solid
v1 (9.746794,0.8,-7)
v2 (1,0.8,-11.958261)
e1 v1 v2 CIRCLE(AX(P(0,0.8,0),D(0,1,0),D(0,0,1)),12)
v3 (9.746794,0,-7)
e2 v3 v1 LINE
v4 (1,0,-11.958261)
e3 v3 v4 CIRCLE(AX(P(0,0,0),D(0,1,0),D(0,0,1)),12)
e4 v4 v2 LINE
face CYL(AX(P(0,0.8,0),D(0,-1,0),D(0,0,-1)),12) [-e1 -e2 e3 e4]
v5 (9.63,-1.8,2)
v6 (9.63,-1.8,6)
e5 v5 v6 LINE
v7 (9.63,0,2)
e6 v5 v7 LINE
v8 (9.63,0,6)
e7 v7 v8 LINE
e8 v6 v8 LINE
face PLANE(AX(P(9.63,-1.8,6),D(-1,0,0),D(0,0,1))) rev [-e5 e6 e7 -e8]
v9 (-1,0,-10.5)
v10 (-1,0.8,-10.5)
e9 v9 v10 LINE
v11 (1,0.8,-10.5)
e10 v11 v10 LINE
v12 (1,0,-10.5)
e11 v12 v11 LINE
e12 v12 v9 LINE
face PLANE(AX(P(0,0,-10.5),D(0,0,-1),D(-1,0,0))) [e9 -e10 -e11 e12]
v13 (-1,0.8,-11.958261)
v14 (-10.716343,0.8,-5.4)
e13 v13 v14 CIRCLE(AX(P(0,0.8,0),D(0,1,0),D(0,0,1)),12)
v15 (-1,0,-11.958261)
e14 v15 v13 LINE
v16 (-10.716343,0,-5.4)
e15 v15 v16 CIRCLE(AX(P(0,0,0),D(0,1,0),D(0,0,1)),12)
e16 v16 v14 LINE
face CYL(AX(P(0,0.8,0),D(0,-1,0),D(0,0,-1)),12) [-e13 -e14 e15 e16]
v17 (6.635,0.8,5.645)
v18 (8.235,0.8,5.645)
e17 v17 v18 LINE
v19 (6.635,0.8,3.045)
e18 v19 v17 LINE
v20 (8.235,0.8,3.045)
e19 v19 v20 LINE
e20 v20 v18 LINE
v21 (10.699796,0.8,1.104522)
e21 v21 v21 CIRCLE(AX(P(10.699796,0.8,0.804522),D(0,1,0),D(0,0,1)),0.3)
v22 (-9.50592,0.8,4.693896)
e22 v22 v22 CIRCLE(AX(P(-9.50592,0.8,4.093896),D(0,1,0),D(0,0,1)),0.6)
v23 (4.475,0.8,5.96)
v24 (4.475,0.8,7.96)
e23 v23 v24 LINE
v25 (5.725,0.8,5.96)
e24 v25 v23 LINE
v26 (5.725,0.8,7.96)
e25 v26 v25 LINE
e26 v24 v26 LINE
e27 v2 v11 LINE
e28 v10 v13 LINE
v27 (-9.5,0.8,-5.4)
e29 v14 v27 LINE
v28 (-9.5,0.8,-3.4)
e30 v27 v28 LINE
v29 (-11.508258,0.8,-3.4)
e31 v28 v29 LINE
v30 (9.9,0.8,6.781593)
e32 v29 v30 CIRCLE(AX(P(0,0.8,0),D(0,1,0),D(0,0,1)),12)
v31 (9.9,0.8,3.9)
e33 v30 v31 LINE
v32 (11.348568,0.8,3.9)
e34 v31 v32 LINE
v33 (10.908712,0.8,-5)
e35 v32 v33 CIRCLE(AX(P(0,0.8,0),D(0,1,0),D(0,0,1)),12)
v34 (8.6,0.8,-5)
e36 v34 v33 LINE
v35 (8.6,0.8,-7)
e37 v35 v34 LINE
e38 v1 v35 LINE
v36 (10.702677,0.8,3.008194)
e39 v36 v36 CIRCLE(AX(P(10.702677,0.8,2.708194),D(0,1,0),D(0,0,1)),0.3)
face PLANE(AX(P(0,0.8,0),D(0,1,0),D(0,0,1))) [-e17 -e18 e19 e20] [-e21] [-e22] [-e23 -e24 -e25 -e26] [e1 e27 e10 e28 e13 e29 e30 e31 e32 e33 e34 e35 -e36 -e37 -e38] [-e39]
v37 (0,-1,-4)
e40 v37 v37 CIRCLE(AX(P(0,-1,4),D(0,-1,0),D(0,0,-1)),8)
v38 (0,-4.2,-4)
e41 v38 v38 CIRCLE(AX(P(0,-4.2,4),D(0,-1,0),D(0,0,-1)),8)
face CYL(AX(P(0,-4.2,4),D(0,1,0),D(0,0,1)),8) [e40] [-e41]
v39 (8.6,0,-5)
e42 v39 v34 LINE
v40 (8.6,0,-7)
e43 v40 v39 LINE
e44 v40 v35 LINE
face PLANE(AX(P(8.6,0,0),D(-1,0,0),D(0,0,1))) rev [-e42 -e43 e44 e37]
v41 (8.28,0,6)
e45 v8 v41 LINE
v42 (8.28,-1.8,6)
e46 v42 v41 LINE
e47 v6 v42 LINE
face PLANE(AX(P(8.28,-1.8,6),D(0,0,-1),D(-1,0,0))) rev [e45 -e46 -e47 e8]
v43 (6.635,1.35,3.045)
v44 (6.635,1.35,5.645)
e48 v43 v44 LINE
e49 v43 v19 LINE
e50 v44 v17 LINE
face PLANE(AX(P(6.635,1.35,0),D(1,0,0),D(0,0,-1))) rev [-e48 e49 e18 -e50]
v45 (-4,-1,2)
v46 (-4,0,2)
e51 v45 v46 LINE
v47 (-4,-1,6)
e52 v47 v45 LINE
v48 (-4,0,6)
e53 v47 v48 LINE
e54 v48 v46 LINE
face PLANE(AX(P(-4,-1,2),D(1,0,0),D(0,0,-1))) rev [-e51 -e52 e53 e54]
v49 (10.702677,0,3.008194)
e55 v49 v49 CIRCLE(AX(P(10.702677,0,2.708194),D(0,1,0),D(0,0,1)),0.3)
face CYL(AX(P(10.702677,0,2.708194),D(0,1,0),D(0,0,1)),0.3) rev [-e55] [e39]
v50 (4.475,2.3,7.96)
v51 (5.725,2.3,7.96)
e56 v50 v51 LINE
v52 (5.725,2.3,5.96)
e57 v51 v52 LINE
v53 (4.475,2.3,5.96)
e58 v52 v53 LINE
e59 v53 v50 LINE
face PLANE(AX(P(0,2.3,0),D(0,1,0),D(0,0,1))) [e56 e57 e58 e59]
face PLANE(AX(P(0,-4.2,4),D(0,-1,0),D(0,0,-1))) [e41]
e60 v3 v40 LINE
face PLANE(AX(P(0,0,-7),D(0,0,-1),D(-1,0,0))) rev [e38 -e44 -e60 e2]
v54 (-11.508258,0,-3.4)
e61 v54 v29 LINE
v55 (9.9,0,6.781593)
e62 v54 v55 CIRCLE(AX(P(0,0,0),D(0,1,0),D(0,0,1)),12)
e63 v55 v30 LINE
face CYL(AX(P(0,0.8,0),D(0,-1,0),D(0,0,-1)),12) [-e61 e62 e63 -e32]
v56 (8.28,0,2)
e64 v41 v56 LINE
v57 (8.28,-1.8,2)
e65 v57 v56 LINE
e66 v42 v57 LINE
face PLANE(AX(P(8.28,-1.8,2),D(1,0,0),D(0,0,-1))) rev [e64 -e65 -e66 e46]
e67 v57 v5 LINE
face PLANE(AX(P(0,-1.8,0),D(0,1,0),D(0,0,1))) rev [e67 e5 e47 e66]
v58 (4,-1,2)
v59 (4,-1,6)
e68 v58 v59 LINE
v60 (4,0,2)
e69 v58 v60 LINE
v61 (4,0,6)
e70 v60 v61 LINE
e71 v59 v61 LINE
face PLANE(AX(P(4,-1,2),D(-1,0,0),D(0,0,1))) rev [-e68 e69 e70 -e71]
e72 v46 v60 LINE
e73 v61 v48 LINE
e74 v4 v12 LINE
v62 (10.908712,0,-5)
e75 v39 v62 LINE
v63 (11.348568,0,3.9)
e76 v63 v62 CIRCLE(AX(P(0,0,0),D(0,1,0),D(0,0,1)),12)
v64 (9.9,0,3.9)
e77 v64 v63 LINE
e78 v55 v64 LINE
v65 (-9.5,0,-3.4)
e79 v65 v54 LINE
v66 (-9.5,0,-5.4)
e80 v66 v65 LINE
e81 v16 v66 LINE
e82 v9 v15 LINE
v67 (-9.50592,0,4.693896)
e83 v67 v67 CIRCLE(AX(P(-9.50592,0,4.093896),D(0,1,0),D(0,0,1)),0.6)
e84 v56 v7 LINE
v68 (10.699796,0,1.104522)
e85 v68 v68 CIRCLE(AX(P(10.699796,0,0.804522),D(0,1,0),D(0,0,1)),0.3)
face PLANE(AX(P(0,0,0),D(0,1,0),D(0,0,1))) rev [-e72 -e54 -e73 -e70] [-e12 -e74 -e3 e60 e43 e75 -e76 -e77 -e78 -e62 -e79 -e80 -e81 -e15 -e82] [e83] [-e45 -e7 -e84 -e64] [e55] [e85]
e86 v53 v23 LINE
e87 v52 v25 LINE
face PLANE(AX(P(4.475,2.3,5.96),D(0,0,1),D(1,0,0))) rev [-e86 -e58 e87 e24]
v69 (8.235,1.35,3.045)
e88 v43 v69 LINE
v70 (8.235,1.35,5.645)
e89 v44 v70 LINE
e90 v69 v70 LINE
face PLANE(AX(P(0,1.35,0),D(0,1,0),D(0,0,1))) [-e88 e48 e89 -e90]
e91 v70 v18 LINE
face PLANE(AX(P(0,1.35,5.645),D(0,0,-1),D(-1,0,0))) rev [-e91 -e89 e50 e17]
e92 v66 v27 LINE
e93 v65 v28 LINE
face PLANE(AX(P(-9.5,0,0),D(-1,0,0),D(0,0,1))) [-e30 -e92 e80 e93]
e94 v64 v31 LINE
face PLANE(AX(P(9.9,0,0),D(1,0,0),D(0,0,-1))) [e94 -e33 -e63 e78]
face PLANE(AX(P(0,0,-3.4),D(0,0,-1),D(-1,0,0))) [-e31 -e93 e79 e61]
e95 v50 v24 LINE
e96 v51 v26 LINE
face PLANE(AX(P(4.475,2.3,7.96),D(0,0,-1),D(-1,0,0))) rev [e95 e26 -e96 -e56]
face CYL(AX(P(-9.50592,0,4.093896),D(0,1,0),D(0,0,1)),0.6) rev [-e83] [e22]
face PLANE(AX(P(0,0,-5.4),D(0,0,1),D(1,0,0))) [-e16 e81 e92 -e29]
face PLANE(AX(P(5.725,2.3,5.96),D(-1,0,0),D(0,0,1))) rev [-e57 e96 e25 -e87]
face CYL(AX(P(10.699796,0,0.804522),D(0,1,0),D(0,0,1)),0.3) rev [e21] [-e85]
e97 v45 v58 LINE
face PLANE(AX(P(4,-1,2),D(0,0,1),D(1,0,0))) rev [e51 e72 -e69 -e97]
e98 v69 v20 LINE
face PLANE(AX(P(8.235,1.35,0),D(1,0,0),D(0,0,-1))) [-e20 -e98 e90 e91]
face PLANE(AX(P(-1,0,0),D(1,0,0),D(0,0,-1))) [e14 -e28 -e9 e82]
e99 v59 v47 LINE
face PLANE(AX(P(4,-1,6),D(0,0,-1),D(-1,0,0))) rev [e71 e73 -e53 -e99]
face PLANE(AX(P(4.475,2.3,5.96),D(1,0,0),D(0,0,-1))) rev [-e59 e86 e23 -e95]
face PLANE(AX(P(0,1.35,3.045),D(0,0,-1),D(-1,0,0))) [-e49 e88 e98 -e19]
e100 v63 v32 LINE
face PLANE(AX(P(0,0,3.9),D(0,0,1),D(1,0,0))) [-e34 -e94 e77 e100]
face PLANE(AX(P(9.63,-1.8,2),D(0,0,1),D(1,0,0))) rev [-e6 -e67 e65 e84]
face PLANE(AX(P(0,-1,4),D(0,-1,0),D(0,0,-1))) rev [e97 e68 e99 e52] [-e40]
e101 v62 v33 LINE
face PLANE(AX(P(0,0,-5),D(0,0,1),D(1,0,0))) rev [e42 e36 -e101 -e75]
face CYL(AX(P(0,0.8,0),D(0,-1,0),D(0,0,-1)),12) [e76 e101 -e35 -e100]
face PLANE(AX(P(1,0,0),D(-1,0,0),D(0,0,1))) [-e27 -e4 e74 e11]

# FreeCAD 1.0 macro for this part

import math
import FreeCAD as App
import Part
import Sketcher
from FreeCAD import Vector
Q = App.Units.Quantity

doc = App.newDocument("Part")
body = doc.addObject("PartDesign::Body", "Body")

sketch1 = body.newObject("Sketcher::SketchObject", "Sketch")
sketch1.AttachmentSupport = (doc.getObject("XZ_Plane"), [""])
sketch1.MapMode = "FlatFace"
sketch1.addGeometry(Part.Circle(Vector(0, 0, 0), Vector(0, 0, 1), 12), False)
sketch1.addConstraint(Sketcher.Constraint("Coincident", 0, 3, -1, 1))
sketch1.addConstraint(Sketcher.Constraint("Diameter", 0, Q("24 mm")))
pad1 = body.newObject("PartDesign::Pad", "Pad")
pad1.Profile = sketch1
pad1.Length = 0.8
pad1.Reversed = True

sketch2 = body.newObject("Sketcher::SketchObject", "Sketch001")
sketch2.AttachmentSupport = (doc.getObject("XZ_Plane"), [""])
sketch2.MapMode = "FlatFace"
sketch2.addGeometry(Part.LineSegment(Vector(-11.508258, -3.4, 0), Vector(-9.5, -3.4, 0)), False)
sketch2.addGeometry(Part.LineSegment(Vector(-9.5, -3.4, 0), Vector(-9.5, -5.4, 0)), False)
sketch2.addGeometry(Part.LineSegment(Vector(-9.5, -5.4, 0), Vector(-10.716343, -5.4, 0)), False)
sketch2.addGeometry(Part.ArcOfCircle(Part.Circle(Vector(0, 0, 0), Vector(0, 0, 1), 12), math.radians(-163.54075), math.radians(-153.256316)), False)
sketch2.addGeometry(Part.ArcOfCircle(Part.Circle(Vector(0, 0, 0), Vector(0, 0, 1), 12), math.radians(-94.780192), math.radians(-90)), False)
sketch2.addGeometry(Part.LineSegment(Vector(-1, -11.958261, 0), Vector(-1, -10.5, 0)), False)
sketch2.addGeometry(Part.LineSegment(Vector(-1, -10.5, 0), Vector(1, -10.5, 0)), False)
sketch2.addGeometry(Part.LineSegment(Vector(1, -10.5, 0), Vector(1, -11.958261, 0)), False)
sketch2.addGeometry(Part.ArcOfCircle(Part.Circle(Vector(0, 0, 0), Vector(0, 0, 1), 12), math.radians(-90), math.radians(-85.219808)), False)
sketch2.addGeometry(Part.LineSegment(Vector(8.6, -5, 0), Vector(10.908712, -5, 0)), False)
sketch2.addGeometry(Part.ArcOfCircle(Part.Circle(Vector(0, 0, 0), Vector(0, 0, 1), 12), math.radians(-35.685335), math.radians(-24.624318)), False)
sketch2.addGeometry(Part.LineSegment(Vector(9.746794, -7, 0), Vector(8.6, -7, 0)), False)
sketch2.addGeometry(Part.LineSegment(Vector(8.6, -7, 0), Vector(8.6, -5, 0)), False)
sketch2.addGeometry(Part.LineSegment(Vector(9.9, 3.9, 0), Vector(9.9, 6.781593, 0)), False)
sketch2.addGeometry(Part.ArcOfCircle(Part.Circle(Vector(0, 0, 0), Vector(0, 0, 1), 12), math.radians(18.965575), math.radians(34.411509)), False)
sketch2.addGeometry(Part.LineSegment(Vector(11.348568, 3.9, 0), Vector(9.9, 3.9, 0)), False)
sketch2.addConstraint(Sketcher.Constraint("Coincident", 0, 2, 1, 1))
sketch2.addConstraint(Sketcher.Constraint("Coincident", 1, 2, 2, 1))
sketch2.addConstraint(Sketcher.Constraint("Coincident", 2, 2, 3, 2))
sketch2.addConstraint(Sketcher.Constraint("Coincident", 3, 1, 0, 1))
sketch2.addConstraint(Sketcher.Constraint("Coincident", 4, 1, 5, 1))
sketch2.addConstraint(Sketcher.Constraint("Coincident", 5, 2, 6, 1))
sketch2.addConstraint(Sketcher.Constraint("Coincident", 6, 2, 7, 1))
sketch2.addConstraint(Sketcher.Constraint("Coincident", 7, 2, 8, 2))
sketch2.addConstraint(Sketcher.Constraint("Tangent", 8, 1, 4, 2))
sketch2.addConstraint(Sketcher.Constraint("Coincident", 9, 2, 10, 2))
sketch2.addConstraint(Sketcher.Constraint("Coincident", 10, 1, 11, 1))
sketch2.addConstraint(Sketcher.Constraint("Coincident", 11, 2, 12, 1))
sketch2.addConstraint(Sketcher.Constraint("Coincident", 12, 2, 9, 1))
sketch2.addConstraint(Sketcher.Constraint("Coincident", 13, 2, 14, 2))
sketch2.addConstraint(Sketcher.Constraint("Coincident", 14, 1, 15, 1))
sketch2.addConstraint(Sketcher.Constraint("Coincident", 15, 2, 13, 1))
sketch2.addConstraint(Sketcher.Constraint("Horizontal", 0))
sketch2.addConstraint(Sketcher.Constraint("Vertical", 1))
sketch2.addConstraint(Sketcher.Constraint("Horizontal", 2))
sketch2.addConstraint(Sketcher.Constraint("Vertical", 5))
sketch2.addConstraint(Sketcher.Constraint("Horizontal", 6))
sketch2.addConstraint(Sketcher.Constraint("Vertical", 7))
sketch2.addConstraint(Sketcher.Constraint("Horizontal", 9))
sketch2.addConstraint(Sketcher.Constraint("Horizontal", 11))
sketch2.addConstraint(Sketcher.Constraint("Vertical", 12))
sketch2.addConstraint(Sketcher.Constraint("Vertical", 13))
sketch2.addConstraint(Sketcher.Constraint("Horizontal", 15))
sketch2.addConstraint(Sketcher.Constraint("Coincident", 3, 3, -1, 1))
sketch2.addConstraint(Sketcher.Constraint("Coincident", 4, 3, -1, 1))
sketch2.addConstraint(Sketcher.Constraint("Coincident", 10, 3, -1, 1))
sketch2.addConstraint(Sketcher.Constraint("Coincident", 14, 3, -1, 1))
sketch2.addConstraint(Sketcher.Constraint("Equal", 3, 4))
sketch2.addConstraint(Sketcher.Constraint("Equal", 4, 8))
sketch2.addConstraint(Sketcher.Constraint("Equal", 8, 10))
sketch2.addConstraint(Sketcher.Constraint("Equal", 10, 14))
sketch2.addConstraint(Sketcher.Constraint("PointOnObject", 8, 1, -2))
sketch2.addConstraint(Sketcher.Constraint("Horizontal", 4, 1, 7, 2))
sketch2.addConstraint(Sketcher.Constraint("Equal", 6, 1))
sketch2.addConstraint(Sketcher.Constraint("Equal", 1, 12))
sketch2.addConstraint(Sketcher.Constraint("Radius", 3, Q("12 mm")))
sketch2.addConstraint(Sketcher.Constraint("DistanceX", 6, 1, 6, 2, Q("2 mm")))
sketch2.addConstraint(Sketcher.Constraint("DistanceY", 9, 2, -1, 1, Q("5 mm")))
sketch2.addConstraint(Sketcher.Constraint("DistanceX", 0, 2, -1, 1, Q("9.5 mm")))
sketch2.addConstraint(Sketcher.Constraint("DistanceY", 0, 2, -1, 1, Q("3.4 mm")))
sketch2.addConstraint(Sketcher.Constraint("DistanceY", 5, 2, -1, 1, Q("10.5 mm")))
sketch2.addConstraint(Sketcher.Constraint("DistanceX", -1, 1, 11, 2, Q("8.6 mm")))
sketch2.addConstraint(Sketcher.Constraint("DistanceX", -1, 1, 13, 2, Q("9.9 mm")))
sketch2.addConstraint(Sketcher.Constraint("DistanceY", -1, 1, 14, 1, Q("3.9 mm")))
pocket1 = body.newObject("PartDesign::Pocket", "Pocket")
pocket1.Profile = sketch2
pocket1.Length = 0.8

sketch3 = body.newObject("Sketcher::SketchObject", "Sketch002")
sketch3.AttachmentSupport = (doc.getObject("XZ_Plane"), [""])
sketch3.MapMode = "FlatFace"
sketch3.AttachmentOffset = App.Placement(Vector(0, 0, -0.8), App.Rotation())
sketch3.addGeometry(Part.Circle(Vector(-9.50592, 4.093896, 0), Vector(0, 0, 1), 0.6), False)
sketch3.addGeometry(Part.Circle(Vector(10.702677, 2.708194, 0), Vector(0, 0, 1), 0.3), False)
sketch3.addGeometry(Part.Circle(Vector(10.699796, 0.804522, 0), Vector(0, 0, 1), 0.3), False)
sketch3.addConstraint(Sketcher.Constraint("Equal", 1, 2))
sketch3.addConstraint(Sketcher.Constraint("Diameter", 0, Q("1.2 mm")))
sketch3.addConstraint(Sketcher.Constraint("Diameter", 1, Q("0.6 mm")))
sketch3.addConstraint(Sketcher.Constraint("DistanceX", 0, 3, -1, 1, Q("9.50592 mm")))
sketch3.addConstraint(Sketcher.Constraint("DistanceY", -1, 1, 2, 3, Q("0.804522 mm")))
sketch3.addConstraint(Sketcher.Constraint("DistanceX", 2, 3, 1, 3, Q("0.00288 mm")))
sketch3.addConstraint(Sketcher.Constraint("DistanceY", 2, 3, 1, 3, Q("1.903672 mm")))
sketch3.addConstraint(Sketcher.Constraint("DistanceY", -1, 1, 0, 3, Q("4.093896 mm")))
sketch3.addConstraint(Sketcher.Constraint("DistanceX", -1, 1, 1, 3, Q("10.702677 mm")))
pocket2 = body.newObject("PartDesign::Pocket", "Pocket001")
pocket2.Profile = sketch3
pocket2.Length = 0.8
pocket2.Reversed = True

sketch4 = body.newObject("Sketcher::SketchObject", "Sketch003")
sketch4.AttachmentSupport = (doc.getObject("XZ_Plane"), [""])
sketch4.MapMode = "FlatFace"
sketch4.addGeometry(Part.LineSegment(Vector(4, 2, 0), Vector(4, 6, 0)), False)
sketch4.addGeometry(Part.LineSegment(Vector(4, 6, 0), Vector(-4, 6, 0)), False)
sketch4.addGeometry(Part.LineSegment(Vector(-4, 6, 0), Vector(-4, 2, 0)), False)
sketch4.addGeometry(Part.LineSegment(Vector(-4, 2, 0), Vector(4, 2, 0)), False)
sketch4.addConstraint(Sketcher.Constraint("Coincident", 0, 2, 1, 1))
sketch4.addConstraint(Sketcher.Constraint("Coincident", 1, 2, 2, 1))
sketch4.addConstraint(Sketcher.Constraint("Coincident", 2, 2, 3, 1))
sketch4.addConstraint(Sketcher.Constraint("Coincident", 3, 2, 0, 1))
sketch4.addConstraint(Sketcher.Constraint("Vertical", 0))
sketch4.addConstraint(Sketcher.Constraint("Horizontal", 1))
sketch4.addConstraint(Sketcher.Constraint("Vertical", 2))
sketch4.addConstraint(Sketcher.Constraint("Horizontal", 3))
sketch4.addConstraint(Sketcher.Constraint("DistanceX", 1, 2, 1, 1, Q("8 mm")))
sketch4.addConstraint(Sketcher.Constraint("DistanceY", 0, 1, 0, 2, Q("4 mm")))
sketch4.addConstraint(Sketcher.Constraint("DistanceX", -1, 1, 0, 2, Q("4 mm")))
sketch4.addConstraint(Sketcher.Constraint("DistanceY", -1, 1, 0, 2, Q("6 mm")))
pad2 = body.newObject("PartDesign::Pad", "Pad001")
pad2.Profile = sketch4
pad2.Length = 1

sketch5 = body.newObject("Sketcher::SketchObject", "Sketch004")
sketch5.AttachmentSupport = (doc.getObject("XZ_Plane"), [""])
sketch5.MapMode = "FlatFace"
sketch5.AttachmentOffset = App.Placement(Vector(0, 0, 1), App.Rotation())
sketch5.addGeometry(Part.Circle(Vector(0, 4, 0), Vector(0, 0, 1), 8), False)
sketch5.addConstraint(Sketcher.Constraint("PointOnObject", 0, 3, -2))
sketch5.addConstraint(Sketcher.Constraint("Diameter", 0, Q("16 mm")))
sketch5.addConstraint(Sketcher.Constraint("DistanceY", -1, 1, 0, 3, Q("4 mm")))
pad3 = body.newObject("PartDesign::Pad", "Pad002")
pad3.Profile = sketch5
pad3.Length = 3.2

sketch6 = body.newObject("Sketcher::SketchObject", "Sketch005")
sketch6.AttachmentSupport = (doc.getObject("XZ_Plane"), [""])
sketch6.MapMode = "FlatFace"
sketch6.addGeometry(Part.LineSegment(Vector(8.28, 6, 0), Vector(8.28, 2, 0)), False)
sketch6.addGeometry(Part.LineSegment(Vector(8.28, 2, 0), Vector(9.63, 2, 0)), False)
sketch6.addGeometry(Part.LineSegment(Vector(9.63, 2, 0), Vector(9.63, 6, 0)), False)
sketch6.addGeometry(Part.LineSegment(Vector(9.63, 6, 0), Vector(8.28, 6, 0)), False)
sketch6.addConstraint(Sketcher.Constraint("Coincident", 0, 2, 1, 1))
sketch6.addConstraint(Sketcher.Constraint("Coincident", 1, 2, 2, 1))
sketch6.addConstraint(Sketcher.Constraint("Coincident", 2, 2, 3, 1))
sketch6.addConstraint(Sketcher.Constraint("Coincident", 3, 2, 0, 1))
sketch6.addConstraint(Sketcher.Constraint("Vertical", 0))
sketch6.addConstraint(Sketcher.Constraint("Horizontal", 1))
sketch6.addConstraint(Sketcher.Constraint("Vertical", 2))
sketch6.addConstraint(Sketcher.Constraint("Horizontal", 3))
sketch6.addConstraint(Sketcher.Constraint("DistanceY", 0, 2, 0, 1, Q("4 mm")))
sketch6.addConstraint(Sketcher.Constraint("DistanceY", -1, 1, 0, 2, Q("2 mm")))
sketch6.addConstraint(Sketcher.Constraint("DistanceX", 1, 1, 1, 2, Q("1.35 mm")))
sketch6.addConstraint(Sketcher.Constraint("DistanceX", -1, 1, 0, 2, Q("8.28 mm")))
pad4 = body.newObject("PartDesign::Pad", "Pad003")
pad4.Profile = sketch6
pad4.Length = 1.8

sketch7 = body.newObject("Sketcher::SketchObject", "Sketch006")
sketch7.AttachmentSupport = (doc.getObject("XZ_Plane"), [""])
sketch7.MapMode = "FlatFace"
sketch7.AttachmentOffset = App.Placement(Vector(0, 0, -0.8), App.Rotation())
sketch7.addGeometry(Part.LineSegment(Vector(4.475, 5.96, 0), Vector(4.475, 7.96, 0)), False)
sketch7.addGeometry(Part.LineSegment(Vector(4.475, 7.96, 0), Vector(5.725, 7.96, 0)), False)
sketch7.addGeometry(Part.LineSegment(Vector(5.725, 7.96, 0), Vector(5.725, 5.96, 0)), False)
sketch7.addGeometry(Part.LineSegment(Vector(5.725, 5.96, 0), Vector(4.475, 5.96, 0)), False)
sketch7.addConstraint(Sketcher.Constraint("Coincident", 0, 2, 1, 1))
sketch7.addConstraint(Sketcher.Constraint("Coincident", 1, 2, 2, 1))
sketch7.addConstraint(Sketcher.Constraint("Coincident", 2, 2, 3, 1))
sketch7.addConstraint(Sketcher.Constraint("Coincident", 3, 2, 0, 1))
sketch7.addConstraint(Sketcher.Constraint("Vertical", 0))
sketch7.addConstraint(Sketcher.Constraint("Horizontal", 1))
sketch7.addConstraint(Sketcher.Constraint("Vertical", 2))
sketch7.addConstraint(Sketcher.Constraint("Horizontal", 3))
sketch7.addConstraint(Sketcher.Constraint("DistanceY", 0, 1, 0, 2, Q("2 mm")))
sketch7.addConstraint(Sketcher.Constraint("DistanceX", 1, 1, 1, 2, Q("1.25 mm")))
sketch7.addConstraint(Sketcher.Constraint("DistanceY", -1, 1, 0, 2, Q("7.96 mm")))
sketch7.addConstraint(Sketcher.Constraint("DistanceX", -1, 1, 0, 2, Q("4.475 mm")))
pad5 = body.newObject("PartDesign::Pad", "Pad004")
pad5.Profile = sketch7
pad5.Length = 1.5
pad5.Reversed = True

sketch8 = body.newObject("Sketcher::SketchObject", "Sketch007")
sketch8.AttachmentSupport = (doc.getObject("XZ_Plane"), [""])
sketch8.MapMode = "FlatFace"
sketch8.AttachmentOffset = App.Placement(Vector(0, 0, -0.8), App.Rotation())
sketch8.addGeometry(Part.LineSegment(Vector(6.635, 3.045, 0), Vector(6.635, 5.645, 0)), False)
sketch8.addGeometry(Part.LineSegment(Vector(6.635, 5.645, 0), Vector(8.235, 5.645, 0)), False)
sketch8.addGeometry(Part.LineSegment(Vector(8.235, 5.645, 0), Vector(8.235, 3.045, 0)), False)
sketch8.addGeometry(Part.LineSegment(Vector(8.235, 3.045, 0), Vector(6.635, 3.045, 0)), False)
sketch8.addConstraint(Sketcher.Constraint("Coincident", 0, 2, 1, 1))
sketch8.addConstraint(Sketcher.Constraint("Coincident", 1, 2, 2, 1))
sketch8.addConstraint(Sketcher.Constraint("Coincident", 2, 2, 3, 1))
sketch8.addConstraint(Sketcher.Constraint("Coincident", 3, 2, 0, 1))
sketch8.addConstraint(Sketcher.Constraint("Vertical", 0))
sketch8.addConstraint(Sketcher.Constraint("Horizontal", 1))
sketch8.addConstraint(Sketcher.Constraint("Vertical", 2))
sketch8.addConstraint(Sketcher.Constraint("Horizontal", 3))
sketch8.addConstraint(Sketcher.Constraint("DistanceX", 1, 1, 1, 2, Q("1.6 mm")))
sketch8.addConstraint(Sketcher.Constraint("DistanceY", 0, 1, 0, 2, Q("2.6 mm")))
sketch8.addConstraint(Sketcher.Constraint("DistanceX", -1, 1, 0, 2, Q("6.635 mm")))
sketch8.addConstraint(Sketcher.Constraint("DistanceY", -1, 1, 0, 2, Q("5.645 mm")))
pad6 = body.newObject("PartDesign::Pad", "Pad005")
pad6.Profile = sketch8
pad6.Length = 0.55
pad6.Reversed = True

doc.recompute()
